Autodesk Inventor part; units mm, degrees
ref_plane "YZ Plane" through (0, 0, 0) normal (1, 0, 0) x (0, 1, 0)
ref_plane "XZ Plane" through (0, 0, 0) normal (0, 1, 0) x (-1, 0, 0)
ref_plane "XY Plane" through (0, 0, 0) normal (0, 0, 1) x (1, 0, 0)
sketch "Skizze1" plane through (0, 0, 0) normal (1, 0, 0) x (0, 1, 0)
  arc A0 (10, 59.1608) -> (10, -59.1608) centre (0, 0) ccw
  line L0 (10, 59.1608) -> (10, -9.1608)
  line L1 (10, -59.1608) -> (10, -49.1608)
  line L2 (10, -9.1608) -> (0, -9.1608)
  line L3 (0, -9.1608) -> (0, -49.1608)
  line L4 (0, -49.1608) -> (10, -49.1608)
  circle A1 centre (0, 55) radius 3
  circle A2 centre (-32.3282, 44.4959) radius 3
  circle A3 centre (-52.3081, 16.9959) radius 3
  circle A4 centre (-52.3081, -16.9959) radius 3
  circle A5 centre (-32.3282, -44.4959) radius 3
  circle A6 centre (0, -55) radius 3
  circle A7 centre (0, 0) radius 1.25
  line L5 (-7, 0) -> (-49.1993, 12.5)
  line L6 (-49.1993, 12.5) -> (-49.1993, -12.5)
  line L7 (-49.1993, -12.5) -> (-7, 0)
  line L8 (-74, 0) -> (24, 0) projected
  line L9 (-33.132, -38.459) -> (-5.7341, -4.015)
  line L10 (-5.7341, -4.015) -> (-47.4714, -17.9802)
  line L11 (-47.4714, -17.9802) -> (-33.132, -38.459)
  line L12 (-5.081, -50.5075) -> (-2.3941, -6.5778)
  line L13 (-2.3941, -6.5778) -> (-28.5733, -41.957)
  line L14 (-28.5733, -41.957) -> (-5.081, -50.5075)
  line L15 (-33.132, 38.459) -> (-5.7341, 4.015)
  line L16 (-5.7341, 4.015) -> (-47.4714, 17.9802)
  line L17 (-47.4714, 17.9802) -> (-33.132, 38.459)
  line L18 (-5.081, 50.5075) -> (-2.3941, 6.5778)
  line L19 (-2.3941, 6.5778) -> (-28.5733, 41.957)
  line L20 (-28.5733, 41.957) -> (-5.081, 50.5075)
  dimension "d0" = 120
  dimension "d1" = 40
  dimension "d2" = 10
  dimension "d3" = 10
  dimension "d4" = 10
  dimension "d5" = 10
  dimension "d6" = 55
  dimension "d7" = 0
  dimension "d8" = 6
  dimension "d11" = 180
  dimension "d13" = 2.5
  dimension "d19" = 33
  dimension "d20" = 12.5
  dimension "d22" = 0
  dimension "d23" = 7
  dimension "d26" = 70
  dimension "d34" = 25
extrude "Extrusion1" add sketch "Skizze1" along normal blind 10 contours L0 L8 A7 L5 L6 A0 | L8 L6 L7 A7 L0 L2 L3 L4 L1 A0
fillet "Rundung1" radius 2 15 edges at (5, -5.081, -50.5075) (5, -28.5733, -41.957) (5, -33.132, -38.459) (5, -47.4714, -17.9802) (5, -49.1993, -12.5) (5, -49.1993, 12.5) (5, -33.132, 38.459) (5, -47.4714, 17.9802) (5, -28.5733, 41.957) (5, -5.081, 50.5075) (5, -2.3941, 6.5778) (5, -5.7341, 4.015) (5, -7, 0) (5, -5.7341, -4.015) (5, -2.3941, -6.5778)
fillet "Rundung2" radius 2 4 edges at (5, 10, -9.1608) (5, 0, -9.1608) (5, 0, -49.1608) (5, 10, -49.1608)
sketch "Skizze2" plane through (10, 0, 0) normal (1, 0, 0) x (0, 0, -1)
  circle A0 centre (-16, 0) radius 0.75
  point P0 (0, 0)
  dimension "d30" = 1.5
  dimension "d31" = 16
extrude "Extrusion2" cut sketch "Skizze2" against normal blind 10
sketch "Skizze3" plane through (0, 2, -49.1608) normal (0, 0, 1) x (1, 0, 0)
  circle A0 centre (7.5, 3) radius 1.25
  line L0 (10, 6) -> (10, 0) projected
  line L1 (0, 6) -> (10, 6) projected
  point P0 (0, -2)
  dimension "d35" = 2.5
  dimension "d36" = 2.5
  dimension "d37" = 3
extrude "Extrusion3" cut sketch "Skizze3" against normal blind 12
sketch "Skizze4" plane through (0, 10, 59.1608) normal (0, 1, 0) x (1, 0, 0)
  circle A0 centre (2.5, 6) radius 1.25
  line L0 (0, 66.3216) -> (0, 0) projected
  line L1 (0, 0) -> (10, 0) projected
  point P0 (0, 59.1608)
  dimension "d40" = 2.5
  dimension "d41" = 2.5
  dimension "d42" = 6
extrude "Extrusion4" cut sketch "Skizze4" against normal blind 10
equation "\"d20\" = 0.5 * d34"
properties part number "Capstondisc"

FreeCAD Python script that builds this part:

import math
import FreeCAD as App
import Part
import Sketcher
from FreeCAD import Vector
Q = App.Units.Quantity


def edges_at(feature, points):
    """Names of the edges that pass closest to the given points."""
    edges = feature.Shape.Edges
    near = lambda p: min(range(len(edges)), key=lambda i: edges[i].distToShape(Part.Vertex(*p))[0])
    return sorted({f"Edge{near(p) + 1}" for p in points})

doc = App.newDocument("Part")
body = doc.addObject("PartDesign::Body", "Body")

# Sketch on YZ plane
sketch1 = body.newObject("Sketcher::SketchObject", "Sketch")
sketch1.AttachmentSupport = (doc.getObject("YZ_Plane"), [""])
sketch1.MapMode = "FlatFace"
sketch1.addGeometry([
    Part.ArcOfCircle(Part.Circle(Vector(0, 0, 0), Vector(0, 0, 1), 60.000002), math.radians(80.405932), math.radians(279.594068)),  # 0
    Part.LineSegment(Vector(10, -59.1608, 0), Vector(10, -49.1608, 0)),  # 1
    Part.LineSegment(Vector(10, -49.1608, 0), Vector(0, -49.1608, 0)),  # 2
    Part.LineSegment(Vector(0, -49.1608, 0), Vector(0, -9.1608, 0)),  # 3
    Part.LineSegment(Vector(0, -9.1608, 0), Vector(10, -9.1608, 0)),  # 4
    Part.LineSegment(Vector(10, -9.1608, 0), Vector(10, 59.1608, 0)),  # 5
    Part.Circle(Vector(0, 0, 0), Vector(0, 0, 1), 1.25),  # 6
    Part.LineSegment(Vector(-49.1993, 12.5, 0), Vector(-7, 0, 0)),  # 7
    Part.LineSegment(Vector(-7, 0, 0), Vector(-49.1993, -12.5, 0)),  # 8
    Part.LineSegment(Vector(-49.1993, -12.5, 0), Vector(-49.1993, 12.5, 0)),  # 9
    Part.Circle(Vector(-52.3081, 16.9959, 0), Vector(0, 0, 1), 3),  # 10
    Part.LineSegment(Vector(-47.4714, 17.9802, 0), Vector(-33.132, 38.459, 0)),  # 11
    Part.LineSegment(Vector(-33.132, 38.459, 0), Vector(-5.7341, 4.015, 0)),  # 12
    Part.LineSegment(Vector(-5.7341, 4.015, 0), Vector(-47.4714, 17.9802, 0)),  # 13
    Part.Circle(Vector(-32.3282, 44.4959, 0), Vector(0, 0, 1), 3),  # 14
    Part.LineSegment(Vector(-28.5733, 41.957, 0), Vector(-5.081, 50.5075, 0)),  # 15
    Part.LineSegment(Vector(-5.081, 50.5075, 0), Vector(-2.3941, 6.5778, 0)),  # 16
    Part.LineSegment(Vector(-2.3941, 6.5778, 0), Vector(-28.5733, 41.957, 0)),  # 17
    Part.Circle(Vector(0, 55, 0), Vector(0, 0, 1), 3),  # 18
    Part.LineSegment(Vector(-2.3941, -6.5778, 0), Vector(-5.081, -50.5075, 0)),  # 19
    Part.LineSegment(Vector(-5.081, -50.5075, 0), Vector(-28.5733, -41.957, 0)),  # 20
    Part.LineSegment(Vector(-28.5733, -41.957, 0), Vector(-2.3941, -6.5778, 0)),  # 21
    Part.Circle(Vector(-32.3282, -44.4959, 0), Vector(0, 0, 1), 3),  # 22
    Part.Circle(Vector(-52.3081, -16.9959, 0), Vector(0, 0, 1), 3),  # 23
    Part.LineSegment(Vector(-5.7341, -4.015, 0), Vector(-33.132, -38.459, 0)),  # 24
    Part.LineSegment(Vector(-33.132, -38.459, 0), Vector(-47.4714, -17.9802, 0)),  # 25
    Part.LineSegment(Vector(-47.4714, -17.9802, 0), Vector(-5.7341, -4.015, 0)),  # 26
    Part.Circle(Vector(0, -55, 0), Vector(0, 0, 1), 3),  # 27
], False)
sketch1.addConstraint([
    Sketcher.Constraint("Coincident", 0, 2, 1, 1),
    Sketcher.Constraint("Coincident", 1, 2, 2, 1),
    Sketcher.Constraint("Coincident", 2, 2, 3, 1),
    Sketcher.Constraint("Coincident", 3, 2, 4, 1),
    Sketcher.Constraint("Coincident", 4, 2, 5, 1),
    Sketcher.Constraint("Coincident", 5, 2, 0, 1),
    Sketcher.Constraint("Coincident", 7, 2, 8, 1),
    Sketcher.Constraint("Coincident", 8, 2, 9, 1),
    Sketcher.Constraint("Coincident", 9, 2, 7, 1),
    Sketcher.Constraint("Coincident", 11, 2, 12, 1),
    Sketcher.Constraint("Coincident", 12, 2, 13, 1),
    Sketcher.Constraint("Coincident", 13, 2, 11, 1),
    Sketcher.Constraint("Coincident", 15, 2, 16, 1),
    Sketcher.Constraint("Coincident", 16, 2, 17, 1),
    Sketcher.Constraint("Coincident", 17, 2, 15, 1),
    Sketcher.Constraint("Coincident", 19, 2, 20, 1),
    Sketcher.Constraint("Coincident", 20, 2, 21, 1),
    Sketcher.Constraint("Coincident", 21, 2, 19, 1),
    Sketcher.Constraint("Coincident", 24, 2, 25, 1),
    Sketcher.Constraint("Coincident", 25, 2, 26, 1),
    Sketcher.Constraint("Coincident", 26, 2, 24, 1),
    Sketcher.Constraint("Vertical", 1),
    Sketcher.Constraint("Horizontal", 2),
    Sketcher.Constraint("Vertical", 3),
    Sketcher.Constraint("Horizontal", 4),
    Sketcher.Constraint("Vertical", 5),
    Sketcher.Constraint("Vertical", 9),
    Sketcher.Constraint("Coincident", 0, 3, -1, 1),
    Sketcher.Constraint("Coincident", 6, 3, -1, 1),
    Sketcher.Constraint("Equal", 10, 14),
    Sketcher.Constraint("Equal", 14, 18),
    Sketcher.Constraint("Equal", 18, 22),
    Sketcher.Constraint("Equal", 22, 23),
    Sketcher.Constraint("Equal", 23, 27),
    Sketcher.Constraint("Symmetric", 18, 3, 27, 3, -1, 1),
    Sketcher.Constraint("Symmetric", 14, 3, 22, 3, -1),
    Sketcher.Constraint("Symmetric", 10, 3, 23, 3, -1),
    Sketcher.Constraint("Symmetric", 15, 2, 19, 2, -1),
    Sketcher.Constraint("Symmetric", 17, 2, 20, 2, -1),
    Sketcher.Constraint("Symmetric", 16, 2, 21, 2, -1),
    Sketcher.Constraint("Symmetric", 11, 2, 24, 2, -1),
    Sketcher.Constraint("Symmetric", 13, 2, 25, 2, -1),
    Sketcher.Constraint("Symmetric", 12, 2, 26, 2, -1),
    Sketcher.Constraint("PointOnObject", 18, 3, -2),
    Sketcher.Constraint("PointOnObject", 2, 2, -2),
    Sketcher.Constraint("PointOnObject", 7, 2, -1),
    Sketcher.Constraint("Vertical", 1, 2, 4, 2),
    Sketcher.Constraint("Equal", 4, 1),
    Sketcher.Constraint("Equal", 7, 8),
    Sketcher.Constraint("Equal", 8, 12),
    Sketcher.Constraint("Equal", 12, 13),
    Sketcher.Constraint("Equal", 11, 15),
    Sketcher.Constraint("Equal", 13, 16),
    Sketcher.Constraint("Equal", 16, 17),
    Sketcher.Constraint("Diameter", 10, 6.0),
    Sketcher.Constraint("Radius", 0, 60.0),
    Sketcher.Constraint("Diameter", 6, 2.5),
    Sketcher.Constraint("DistanceX", 2, 2, 2, 1, 10.0),
    Sketcher.Constraint("DistanceY", 3, 1, 3, 2, 40.0),
    Sketcher.Constraint("DistanceY", 9, 1, 9, 2, 25.0),
    Sketcher.Constraint("Angle", 11, Q("55 deg")),
    Sketcher.Constraint("Distance", 11, 25.0),
    Sketcher.Constraint("DistanceY", -1, 1, 18, 3, 55.0),
    Sketcher.Constraint("DistanceX", 7, 2, -1, 1, 7.0),
    Sketcher.Constraint("Angle", 15, Q("20 deg")),
    Sketcher.Constraint("Angle", 7, Q("-16.5 deg")),
    Sketcher.Constraint("DistanceY", 10, 3, 14, 3, 27.5),
    Sketcher.Constraint("DistanceX", 10, 3, 14, 3, 19.98),
    Sketcher.Constraint("DistanceX", 12, 2, 16, 2, 3.34),
    Sketcher.Constraint("DistanceX", 10, 3, -1, 1, 52.308),
    Sketcher.Constraint("DistanceY", -1, 1, 10, 3, 16.996),
    Sketcher.Constraint("DistanceX", 11, 2, -1, 1, 33.132),
    Sketcher.Constraint("DistanceY", -1, 1, 11, 2, 38.459),
    Sketcher.Constraint("DistanceY", -1, 1, 17, 2, 41.957),
])
pad1 = body.newObject("PartDesign::Pad", "Pad")
pad1.Profile = sketch1
pad1.Length = 10
doc.recompute()

fillet = body.newObject("PartDesign::Fillet", "Fillet")
fillet.Base = (pad1, edges_at(pad1, [
    (5, -5.081, -50.508),
    (5, -28.573, -41.957),
    (5, -33.132, -38.459),
    (5, -47.471, -17.98),
    (5, -49.199, -12.5),
    (5, -49.199, 12.5),
    (5, -33.132, 38.459),
    (5, -47.471, 17.98),
    (5, -28.573, 41.957),
    (5, -5.081, 50.508),
    (5, -2.394, 6.578),
    (5, -5.734, 4.015),
    (5, -7, 0),
    (5, -5.734, -4.015),
    (5, -2.394, -6.578),
]))
fillet.Radius = 2
doc.recompute()

fillet2 = body.newObject("PartDesign::Fillet", "Fillet001")
fillet2.Base = (fillet, edges_at(fillet, [
    (5, 10, -9.161),
    (5, 0, -9.161),
    (5, 0, -49.161),
    (5, 10, -49.161),
]))
fillet2.Radius = 2

# Sketch on YZ plane
sketch2 = body.newObject("Sketcher::SketchObject", "Sketch001")
sketch2.AttachmentSupport = (doc.getObject("YZ_Plane"), [""])
sketch2.MapMode = "FlatFace"
sketch2.AttachmentOffset = App.Placement(Vector(0, 0, 10), App.Rotation())
sketch2.addGeometry(Part.Circle(Vector(0, 16, 0), Vector(0, 0, 1), 0.75), False)
sketch2.addConstraint([
    Sketcher.Constraint("PointOnObject", 0, 3, -2),
    Sketcher.Constraint("Diameter", 0, 1.5),
    Sketcher.Constraint("DistanceY", -1, 1, 0, 3, 16.0),
])
pocket1 = body.newObject("PartDesign::Pocket", "Pocket")
pocket1.Profile = sketch2
pocket1.Length = 10

# Sketch on XY plane
sketch3 = body.newObject("Sketcher::SketchObject", "Sketch002")
sketch3.AttachmentSupport = (doc.getObject("XY_Plane"), [""])
sketch3.MapMode = "FlatFace"
sketch3.AttachmentOffset = App.Placement(Vector(0, 0, -49.1608), App.Rotation())
sketch3.addGeometry(Part.Circle(Vector(7.5, 5, 0), Vector(0, 0, 1), 1.25), False)
sketch3.addConstraint([
    Sketcher.Constraint("Diameter", 0, 2.5),
    Sketcher.Constraint("DistanceY", -1, 1, 0, 3, 5.0),
    Sketcher.Constraint("DistanceX", -1, 1, 0, 3, 7.5),
])
pocket2 = body.newObject("PartDesign::Pocket", "Pocket001")
pocket2.Profile = sketch3
pocket2.Length = 12

# Sketch on XZ plane
sketch4 = body.newObject("Sketcher::SketchObject", "Sketch003")
sketch4.AttachmentSupport = (doc.getObject("XZ_Plane"), [""])
sketch4.MapMode = "FlatFace"
sketch4.AttachmentOffset = App.Placement(Vector(0, 0, -10), App.Rotation())
sketch4.addGeometry(Part.Circle(Vector(2.5, 53.1608, 0), Vector(0, 0, 1), 1.25), False)
sketch4.addConstraint([
    Sketcher.Constraint("Diameter", 0, 2.5),
    Sketcher.Constraint("DistanceX", -1, 1, 0, 3, 2.5),
    Sketcher.Constraint("DistanceY", -1, 1, 0, 3, 53.1608),
])
pocket3 = body.newObject("PartDesign::Pocket", "Pocket002")
pocket3.Profile = sketch4
pocket3.Length = 10
pocket3.Reversed = True

doc.recompute()
